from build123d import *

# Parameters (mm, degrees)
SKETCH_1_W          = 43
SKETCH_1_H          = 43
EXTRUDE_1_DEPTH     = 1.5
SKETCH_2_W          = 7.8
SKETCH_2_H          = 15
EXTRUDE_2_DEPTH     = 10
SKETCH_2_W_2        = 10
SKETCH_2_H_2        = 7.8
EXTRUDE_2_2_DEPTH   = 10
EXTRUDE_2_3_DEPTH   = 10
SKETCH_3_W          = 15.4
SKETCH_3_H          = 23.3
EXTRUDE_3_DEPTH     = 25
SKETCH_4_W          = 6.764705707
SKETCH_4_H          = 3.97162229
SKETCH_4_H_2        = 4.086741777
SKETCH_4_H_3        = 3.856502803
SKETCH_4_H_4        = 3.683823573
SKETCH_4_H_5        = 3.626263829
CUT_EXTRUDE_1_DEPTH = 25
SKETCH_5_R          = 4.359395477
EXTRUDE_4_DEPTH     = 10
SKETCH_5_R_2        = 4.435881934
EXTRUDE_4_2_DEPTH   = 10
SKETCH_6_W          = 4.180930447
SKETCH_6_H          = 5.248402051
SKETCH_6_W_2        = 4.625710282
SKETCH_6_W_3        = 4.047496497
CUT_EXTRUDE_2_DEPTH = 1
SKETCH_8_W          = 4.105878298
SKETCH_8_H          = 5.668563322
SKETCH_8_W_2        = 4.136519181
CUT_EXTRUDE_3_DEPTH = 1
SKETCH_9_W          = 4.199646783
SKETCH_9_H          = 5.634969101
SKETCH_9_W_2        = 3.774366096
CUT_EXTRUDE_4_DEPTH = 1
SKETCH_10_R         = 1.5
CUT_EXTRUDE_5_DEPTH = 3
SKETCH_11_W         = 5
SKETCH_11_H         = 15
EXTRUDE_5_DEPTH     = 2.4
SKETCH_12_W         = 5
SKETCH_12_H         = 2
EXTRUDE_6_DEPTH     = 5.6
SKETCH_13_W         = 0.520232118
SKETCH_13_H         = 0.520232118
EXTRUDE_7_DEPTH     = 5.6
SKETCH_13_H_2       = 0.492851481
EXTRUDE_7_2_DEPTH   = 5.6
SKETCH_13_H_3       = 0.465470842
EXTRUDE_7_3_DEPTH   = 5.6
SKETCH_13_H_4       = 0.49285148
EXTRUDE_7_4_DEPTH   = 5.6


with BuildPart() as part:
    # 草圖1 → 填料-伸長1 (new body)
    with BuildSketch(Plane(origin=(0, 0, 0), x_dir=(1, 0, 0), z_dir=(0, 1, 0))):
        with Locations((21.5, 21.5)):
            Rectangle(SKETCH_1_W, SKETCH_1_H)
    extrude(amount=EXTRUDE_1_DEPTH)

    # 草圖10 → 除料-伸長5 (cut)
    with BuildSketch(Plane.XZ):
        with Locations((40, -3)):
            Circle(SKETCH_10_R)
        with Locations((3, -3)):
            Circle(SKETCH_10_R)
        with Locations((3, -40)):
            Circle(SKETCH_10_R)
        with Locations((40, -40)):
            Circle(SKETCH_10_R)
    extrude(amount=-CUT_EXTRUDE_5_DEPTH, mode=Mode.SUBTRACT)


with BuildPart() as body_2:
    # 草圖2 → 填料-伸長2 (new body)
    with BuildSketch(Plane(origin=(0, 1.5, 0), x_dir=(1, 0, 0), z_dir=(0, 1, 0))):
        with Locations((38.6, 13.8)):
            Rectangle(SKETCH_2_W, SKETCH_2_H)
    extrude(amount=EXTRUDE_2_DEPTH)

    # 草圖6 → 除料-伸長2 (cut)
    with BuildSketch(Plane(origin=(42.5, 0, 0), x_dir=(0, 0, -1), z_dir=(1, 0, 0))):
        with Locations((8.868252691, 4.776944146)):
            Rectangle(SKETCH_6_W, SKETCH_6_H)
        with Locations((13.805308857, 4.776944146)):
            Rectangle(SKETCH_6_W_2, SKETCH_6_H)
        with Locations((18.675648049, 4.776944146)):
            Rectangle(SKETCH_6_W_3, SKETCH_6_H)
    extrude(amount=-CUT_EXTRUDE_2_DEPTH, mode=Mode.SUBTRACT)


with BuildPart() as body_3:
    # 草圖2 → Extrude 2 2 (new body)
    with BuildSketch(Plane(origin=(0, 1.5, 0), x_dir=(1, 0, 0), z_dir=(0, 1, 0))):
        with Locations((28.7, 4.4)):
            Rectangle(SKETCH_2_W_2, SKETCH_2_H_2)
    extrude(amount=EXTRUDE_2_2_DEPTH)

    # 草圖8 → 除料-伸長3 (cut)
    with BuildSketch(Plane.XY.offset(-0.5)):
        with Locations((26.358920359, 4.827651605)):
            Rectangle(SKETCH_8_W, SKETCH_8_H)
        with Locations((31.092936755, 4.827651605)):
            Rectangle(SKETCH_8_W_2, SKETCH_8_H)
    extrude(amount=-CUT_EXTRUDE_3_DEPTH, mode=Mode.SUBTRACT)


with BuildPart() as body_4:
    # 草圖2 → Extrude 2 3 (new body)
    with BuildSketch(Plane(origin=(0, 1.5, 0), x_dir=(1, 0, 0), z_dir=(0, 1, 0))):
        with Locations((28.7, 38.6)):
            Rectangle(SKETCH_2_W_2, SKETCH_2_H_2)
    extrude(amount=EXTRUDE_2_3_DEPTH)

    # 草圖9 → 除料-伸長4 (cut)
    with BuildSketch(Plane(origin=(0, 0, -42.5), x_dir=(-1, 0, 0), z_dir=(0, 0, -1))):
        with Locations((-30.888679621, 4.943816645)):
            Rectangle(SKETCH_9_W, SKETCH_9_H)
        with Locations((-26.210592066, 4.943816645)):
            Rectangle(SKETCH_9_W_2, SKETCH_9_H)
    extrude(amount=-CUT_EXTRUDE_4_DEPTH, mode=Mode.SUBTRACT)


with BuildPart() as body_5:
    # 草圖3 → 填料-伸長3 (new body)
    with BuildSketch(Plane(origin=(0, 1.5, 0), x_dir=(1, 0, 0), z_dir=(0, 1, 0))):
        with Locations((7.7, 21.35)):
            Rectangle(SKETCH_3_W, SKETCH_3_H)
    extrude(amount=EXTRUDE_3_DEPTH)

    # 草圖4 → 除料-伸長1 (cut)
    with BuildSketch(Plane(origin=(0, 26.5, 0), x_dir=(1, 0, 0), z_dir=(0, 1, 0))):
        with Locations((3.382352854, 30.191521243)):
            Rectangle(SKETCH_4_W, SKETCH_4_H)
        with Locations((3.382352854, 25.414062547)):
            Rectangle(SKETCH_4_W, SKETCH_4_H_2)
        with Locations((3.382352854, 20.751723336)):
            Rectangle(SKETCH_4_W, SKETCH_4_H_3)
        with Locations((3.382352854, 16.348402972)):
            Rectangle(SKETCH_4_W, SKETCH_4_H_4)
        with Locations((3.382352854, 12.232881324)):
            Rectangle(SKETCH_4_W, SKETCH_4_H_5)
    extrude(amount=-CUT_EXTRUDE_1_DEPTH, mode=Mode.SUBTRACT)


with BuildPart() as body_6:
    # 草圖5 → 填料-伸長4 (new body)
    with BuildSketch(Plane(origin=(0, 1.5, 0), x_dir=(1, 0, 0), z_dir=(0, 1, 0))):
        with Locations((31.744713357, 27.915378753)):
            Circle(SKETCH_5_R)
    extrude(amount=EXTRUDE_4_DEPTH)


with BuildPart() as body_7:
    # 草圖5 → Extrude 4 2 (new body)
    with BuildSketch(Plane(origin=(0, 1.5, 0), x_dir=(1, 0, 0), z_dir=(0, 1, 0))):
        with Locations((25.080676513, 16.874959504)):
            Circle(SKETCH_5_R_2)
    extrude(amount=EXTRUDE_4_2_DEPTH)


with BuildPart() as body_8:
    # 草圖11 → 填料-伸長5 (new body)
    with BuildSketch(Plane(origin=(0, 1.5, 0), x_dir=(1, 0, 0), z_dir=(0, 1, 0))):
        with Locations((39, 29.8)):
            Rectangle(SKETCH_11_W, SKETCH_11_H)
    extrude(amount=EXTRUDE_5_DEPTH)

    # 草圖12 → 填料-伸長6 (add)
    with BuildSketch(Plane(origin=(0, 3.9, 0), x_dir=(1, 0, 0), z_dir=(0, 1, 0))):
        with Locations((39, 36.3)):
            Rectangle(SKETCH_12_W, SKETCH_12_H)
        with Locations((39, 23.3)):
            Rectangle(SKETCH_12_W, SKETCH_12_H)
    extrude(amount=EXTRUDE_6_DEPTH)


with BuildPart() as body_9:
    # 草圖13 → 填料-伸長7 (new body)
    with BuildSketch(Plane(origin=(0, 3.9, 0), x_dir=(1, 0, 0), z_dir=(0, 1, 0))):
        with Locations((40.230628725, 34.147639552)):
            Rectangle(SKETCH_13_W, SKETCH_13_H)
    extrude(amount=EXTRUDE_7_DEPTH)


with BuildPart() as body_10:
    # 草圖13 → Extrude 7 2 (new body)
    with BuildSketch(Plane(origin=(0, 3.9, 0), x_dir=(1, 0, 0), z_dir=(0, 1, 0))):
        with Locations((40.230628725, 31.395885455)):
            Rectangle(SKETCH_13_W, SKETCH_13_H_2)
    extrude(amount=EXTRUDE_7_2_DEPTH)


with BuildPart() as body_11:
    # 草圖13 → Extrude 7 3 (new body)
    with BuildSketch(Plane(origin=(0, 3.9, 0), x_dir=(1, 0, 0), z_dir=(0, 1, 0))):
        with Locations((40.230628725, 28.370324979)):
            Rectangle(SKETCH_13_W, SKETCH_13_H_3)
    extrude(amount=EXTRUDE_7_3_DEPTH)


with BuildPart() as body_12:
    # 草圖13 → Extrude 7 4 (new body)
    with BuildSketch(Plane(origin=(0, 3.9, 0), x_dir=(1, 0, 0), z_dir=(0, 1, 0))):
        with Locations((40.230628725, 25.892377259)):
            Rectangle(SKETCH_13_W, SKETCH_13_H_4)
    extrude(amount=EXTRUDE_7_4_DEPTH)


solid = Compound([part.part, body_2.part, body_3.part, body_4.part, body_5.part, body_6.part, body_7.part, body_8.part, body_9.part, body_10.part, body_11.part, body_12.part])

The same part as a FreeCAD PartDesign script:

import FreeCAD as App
import Part
import Sketcher
from FreeCAD import Vector
Q = App.Units.Quantity


def add_polygon(sketch, points):
    """Adds a closed chain of lines whose ends are joined by coincident constraints."""
    first, n = sketch.GeometryCount, len(points)
    for a, b in zip(points, points[1:] + points[:1]):
        sketch.addGeometry(Part.LineSegment(App.Vector(*a, 0), App.Vector(*b, 0)), False)
    for i in range(n):
        sketch.addConstraint(Sketcher.Constraint("Coincident", first + i, 2, first + (i + 1) % n, 1))

doc = App.newDocument("Part")
params = doc.addObject("Spreadsheet::Sheet", "Params")
for row, (alias, value) in enumerate([
    ("sketch1_width", "43 mm"),
    ("pad1_length", "1.5 mm"),
    ("sketch2_diameter", "3 mm"),
    ("pocket1_length", "3 mm"),
    ("sketch3_height", "15 mm"),
    ("sketch3_width", "7.8 mm"),
    ("pad2_length", "10 mm"),
    ("pocket2_length", "1 mm"),
    ("sketch5_width", "10 mm"),
    ("sketch5_height", "7.8 mm"),
    ("pad3_length", "10 mm"),
    ("pocket3_length", "1 mm"),
    ("sketch7_width", "10 mm"),
    ("sketch7_height", "7.8 mm"),
    ("pad4_length", "10 mm"),
    ("pocket4_length", "1 mm"),
    ("sketch9_width", "15.4 mm"),
    ("sketch9_height", "23.3 mm"),
    ("pad5_length", "25 mm"),
    ("pocket5_length", "25 mm"),
    ("pad6_length", "10 mm"),
    ("pad7_length", "10 mm"),
    ("sketch13_width", "5 mm"),
    ("sketch13_height", "15 mm"),
    ("pad8_length", "2.4 mm"),
    ("sketch14_width", "5 mm"),
    ("sketch14_height", "2 mm"),
    ("pad9_length", "5.6 mm"),
    ("pad10_length", "5.6 mm"),
    ("pad11_length", "5.6 mm"),
    ("pad12_length", "5.6 mm"),
    ("pad13_length", "5.6 mm"),
], start=1):
    params.set(f"A{row}", alias)
    params.set(f"B{row}", "=" + value)
    params.setAlias(f"B{row}", alias)

body = doc.addObject("PartDesign::Body", "Body")

# Sketch on XZ plane
sketch1 = doc.addObject("Sketcher::SketchObject", "Sketch")
body.addObject(sketch1)
sketch1.AttachmentSupport = (doc.XZ_Plane, [""])
sketch1.MapMode = "FlatFace"
add_polygon(sketch1, [(0, -43), (0, 0), (43, 0), (43, -43)])  # lines 0-3
sketch1.addConstraint(Sketcher.Constraint("Vertical", 0))
sketch1.addConstraint(Sketcher.Constraint("Horizontal", 1))
sketch1.addConstraint(Sketcher.Constraint("Vertical", 2))
sketch1.addConstraint(Sketcher.Constraint("Horizontal", 3))
sketch1.addConstraint(Sketcher.Constraint("Coincident", 0, 2, -1, 1))
sketch1.addConstraint(Sketcher.Constraint("Equal", 3, 0))
sketch1.addConstraint(Sketcher.Constraint("DistanceX", 1, 1, 1, 2, Q("43 mm")))
sketch1.setExpression("Constraints[10]", "Params.sketch1_width")
pad1 = doc.addObject("PartDesign::Pad", "Pad")
body.addObject(pad1)
pad1.Profile = sketch1
pad1.setExpression("Length", "Params.pad1_length")
pad1.Reversed = True

# Sketch on XZ plane
sketch2 = doc.addObject("Sketcher::SketchObject", "Sketch001")
body.addObject(sketch2)
sketch2.AttachmentSupport = (doc.XZ_Plane, [""])
sketch2.MapMode = "FlatFace"
sketch2.addGeometry(Part.Circle(Vector(40, -3, 0), Vector(0, 0, 1), 1.5), False)
sketch2.addGeometry(Part.Circle(Vector(3, -3, 0), Vector(0, 0, 1), 1.5), False)
sketch2.addGeometry(Part.Circle(Vector(3, -40, 0), Vector(0, 0, 1), 1.5), False)
sketch2.addGeometry(Part.Circle(Vector(40, -40, 0), Vector(0, 0, 1), 1.5), False)
sketch2.addConstraint(Sketcher.Constraint("Equal", 0, 1))
sketch2.addConstraint(Sketcher.Constraint("Equal", 1, 2))
sketch2.addConstraint(Sketcher.Constraint("Equal", 2, 3))
sketch2.addConstraint(Sketcher.Constraint("Horizontal", 0, 3, 1, 3))
sketch2.addConstraint(Sketcher.Constraint("Horizontal", 2, 3, 3, 3))
sketch2.addConstraint(Sketcher.Constraint("Vertical", 1, 3, 2, 3))
sketch2.addConstraint(Sketcher.Constraint("Vertical", 0, 3, 3, 3))
sketch2.addConstraint(Sketcher.Constraint("Diameter", 0, Q("3 mm")))
sketch2.addConstraint(Sketcher.Constraint("DistanceX", -1, 1, 0, 3, Q("40 mm")))
sketch2.addConstraint(Sketcher.Constraint("DistanceY", 0, 3, -1, 1, Q("3 mm")))
sketch2.addConstraint(Sketcher.Constraint("DistanceX", -1, 1, 1, 3, Q("3 mm")))
sketch2.addConstraint(Sketcher.Constraint("DistanceY", 2, 3, -1, 1, Q("40 mm")))
sketch2.setExpression("Constraints[7]", "Params.sketch2_diameter")
pocket1 = doc.addObject("PartDesign::Pocket", "Pocket")
body.addObject(pocket1)
pocket1.Profile = sketch2
pocket1.setExpression("Length", "Params.pocket1_length")
body2 = doc.addObject("PartDesign::Body", "Body001")

# Sketch on XZ plane
sketch3 = doc.addObject("Sketcher::SketchObject", "Sketch002")
body2.addObject(sketch3)
sketch3.AttachmentSupport = (doc.getObject("XZ_Plane001"), [""])
sketch3.MapMode = "FlatFace"
sketch3.AttachmentOffset = App.Placement(Vector(0, 0, -1.5), App.Rotation())
add_polygon(sketch3, [(34.7, -21.3), (34.7, -6.3), (42.5, -6.3), (42.5, -21.3)])  # lines 0-3
sketch3.addConstraint(Sketcher.Constraint("Vertical", 0))
sketch3.addConstraint(Sketcher.Constraint("Horizontal", 1))
sketch3.addConstraint(Sketcher.Constraint("Vertical", 2))
sketch3.addConstraint(Sketcher.Constraint("Horizontal", 3))
sketch3.addConstraint(Sketcher.Constraint("DistanceY", 0, 1, 0, 2, Q("15 mm")))
sketch3.addConstraint(Sketcher.Constraint("DistanceX", 1, 1, 1, 2, Q("7.8 mm")))
sketch3.addConstraint(Sketcher.Constraint("DistanceX", -1, 1, 0, 2, Q("34.7 mm")))
sketch3.addConstraint(Sketcher.Constraint("DistanceY", 0, 2, -1, 1, Q("6.3 mm")))
sketch3.setExpression("Constraints[8]", "Params.sketch3_height")
sketch3.setExpression("Constraints[9]", "Params.sketch3_width")
pad2 = doc.addObject("PartDesign::Pad", "Pad001")
body2.addObject(pad2)
pad2.Profile = sketch3
pad2.setExpression("Length", "Params.pad2_length")
pad2.Reversed = True

# Sketch on YZ plane
sketch4 = doc.addObject("Sketcher::SketchObject", "Sketch003")
body2.addObject(sketch4)
sketch4.AttachmentSupport = (doc.getObject("YZ_Plane001"), [""])
sketch4.MapMode = "FlatFace"
sketch4.AttachmentOffset = App.Placement(Vector(0, 0, 42.5), App.Rotation())
add_polygon(sketch4, [(7.401145, -6.777787), (2.152743, -6.777787), (2.152743, -10.958718), (7.401145, -10.958718)])  # lines 0-3
add_polygon(sketch4, [(7.401145, -11.492454), (2.152743, -11.492454), (2.152743, -16.118164), (7.401145, -16.118164)])  # lines 4-7
add_polygon(sketch4, [(7.401145, -16.6519), (2.152743, -16.6519), (2.152743, -20.699396), (7.401145, -20.699396)])  # lines 8-11
sketch4.addConstraint(Sketcher.Constraint("Horizontal", 0))
sketch4.addConstraint(Sketcher.Constraint("Vertical", 1))
sketch4.addConstraint(Sketcher.Constraint("Horizontal", 2))
sketch4.addConstraint(Sketcher.Constraint("Vertical", 3))
sketch4.addConstraint(Sketcher.Constraint("Horizontal", 4))
sketch4.addConstraint(Sketcher.Constraint("Vertical", 5))
sketch4.addConstraint(Sketcher.Constraint("Horizontal", 6))
sketch4.addConstraint(Sketcher.Constraint("Vertical", 7))
sketch4.addConstraint(Sketcher.Constraint("Horizontal", 8))
sketch4.addConstraint(Sketcher.Constraint("Vertical", 9))
sketch4.addConstraint(Sketcher.Constraint("Horizontal", 10))
sketch4.addConstraint(Sketcher.Constraint("Vertical", 11))
sketch4.addConstraint(Sketcher.Constraint("Vertical", 1, 2, 4, 2))
sketch4.addConstraint(Sketcher.Constraint("Vertical", 3, 2, 6, 2))
sketch4.addConstraint(Sketcher.Constraint("Vertical", 5, 2, 8, 2))
sketch4.addConstraint(Sketcher.Constraint("Vertical", 7, 2, 10, 2))
sketch4.addConstraint(Sketcher.Constraint("DistanceY", 1, 2, 1, 1, Q("4.18093 mm")))
sketch4.addConstraint(Sketcher.Constraint("DistanceY", 5, 2, 5, 1, Q("4.62571 mm")))
sketch4.addConstraint(Sketcher.Constraint("DistanceY", 8, 2, -1, 1, Q("16.6519 mm")))
sketch4.addConstraint(Sketcher.Constraint("DistanceX", 0, 2, 0, 1, Q("5.248402 mm")))
sketch4.addConstraint(Sketcher.Constraint("DistanceY", 9, 2, 9, 1, Q("4.047496 mm")))
sketch4.addConstraint(Sketcher.Constraint("DistanceY", 8, 2, 1, 2, Q("5.693182 mm")))
sketch4.addConstraint(Sketcher.Constraint("DistanceX", -1, 1, 0, 2, Q("2.152743 mm")))
sketch4.addConstraint(Sketcher.Constraint("DistanceY", 4, 2, -1, 1, Q("11.492454 mm")))
pocket2 = doc.addObject("PartDesign::Pocket", "Pocket001")
body2.addObject(pocket2)
pocket2.Profile = sketch4
pocket2.setExpression("Length", "Params.pocket2_length")
body3 = doc.addObject("PartDesign::Body", "Body002")

# Sketch on XZ plane
sketch5 = doc.addObject("Sketcher::SketchObject", "Sketch004")
body3.addObject(sketch5)
sketch5.AttachmentSupport = (doc.getObject("XZ_Plane002"), [""])
sketch5.MapMode = "FlatFace"
sketch5.AttachmentOffset = App.Placement(Vector(0, 0, -1.5), App.Rotation())
add_polygon(sketch5, [(23.7, -8.3), (23.7, -0.5), (33.7, -0.5), (33.7, -8.3)])  # lines 0-3
sketch5.addConstraint(Sketcher.Constraint("Vertical", 0))
sketch5.addConstraint(Sketcher.Constraint("Horizontal", 1))
sketch5.addConstraint(Sketcher.Constraint("Vertical", 2))
sketch5.addConstraint(Sketcher.Constraint("Horizontal", 3))
sketch5.addConstraint(Sketcher.Constraint("DistanceX", 1, 1, 1, 2, Q("10 mm")))
sketch5.addConstraint(Sketcher.Constraint("DistanceY", 0, 1, 0, 2, Q("7.8 mm")))
sketch5.addConstraint(Sketcher.Constraint("DistanceX", -1, 1, 0, 2, Q("23.7 mm")))
sketch5.addConstraint(Sketcher.Constraint("DistanceY", 0, 2, -1, 1, Q("0.5 mm")))
sketch5.setExpression("Constraints[8]", "Params.sketch5_width")
sketch5.setExpression("Constraints[9]", "Params.sketch5_height")
pad3 = doc.addObject("PartDesign::Pad", "Pad002")
body3.addObject(pad3)
pad3.Profile = sketch5
pad3.setExpression("Length", "Params.pad3_length")
pad3.Reversed = True

# Sketch on XY plane
sketch6 = doc.addObject("Sketcher::SketchObject", "Sketch005")
body3.addObject(sketch6)
sketch6.AttachmentSupport = (doc.getObject("XY_Plane002"), [""])
sketch6.MapMode = "FlatFace"
sketch6.AttachmentOffset = App.Placement(Vector(0, 0, -0.5), App.Rotation())
add_polygon(sketch6, [(24.305981, 7.661933), (24.305981, 1.99337), (28.41186, 1.99337), (28.41186, 7.661933)])  # lines 0-3
add_polygon(sketch6, [(29.024677, 7.661933), (29.024677, 1.99337), (33.161196, 1.99337), (33.161196, 7.661933)])  # lines 4-7
sketch6.addConstraint(Sketcher.Constraint("Vertical", 0))
sketch6.addConstraint(Sketcher.Constraint("Horizontal", 1))
sketch6.addConstraint(Sketcher.Constraint("Vertical", 2))
sketch6.addConstraint(Sketcher.Constraint("Horizontal", 3))
sketch6.addConstraint(Sketcher.Constraint("Vertical", 4))
sketch6.addConstraint(Sketcher.Constraint("Horizontal", 5))
sketch6.addConstraint(Sketcher.Constraint("Vertical", 6))
sketch6.addConstraint(Sketcher.Constraint("Horizontal", 7))
sketch6.addConstraint(Sketcher.Constraint("Horizontal", 1, 2, 4, 2))
sketch6.addConstraint(Sketcher.Constraint("Horizontal", 3, 2, 6, 2))
sketch6.addConstraint(Sketcher.Constraint("DistanceX", 1, 1, 1, 2, Q("4.105878 mm")))
sketch6.addConstraint(Sketcher.Constraint("DistanceX", 5, 1, 5, 2, Q("4.136519 mm")))
sketch6.addConstraint(Sketcher.Constraint("DistanceY", 0, 2, 0, 1, Q("5.668563 mm")))
sketch6.addConstraint(Sketcher.Constraint("DistanceX", -1, 1, 0, 2, Q("24.305981 mm")))
sketch6.addConstraint(Sketcher.Constraint("DistanceY", -1, 1, 0, 2, Q("1.99337 mm")))
sketch6.addConstraint(Sketcher.Constraint("DistanceX", -1, 1, 4, 2, Q("29.024677 mm")))
pocket3 = doc.addObject("PartDesign::Pocket", "Pocket002")
body3.addObject(pocket3)
pocket3.Profile = sketch6
pocket3.setExpression("Length", "Params.pocket3_length")
body4 = doc.addObject("PartDesign::Body", "Body003")

# Sketch on XZ plane
sketch7 = doc.addObject("Sketcher::SketchObject", "Sketch006")
body4.addObject(sketch7)
sketch7.AttachmentSupport = (doc.getObject("XZ_Plane003"), [""])
sketch7.MapMode = "FlatFace"
sketch7.AttachmentOffset = App.Placement(Vector(0, 0, -1.5), App.Rotation())
add_polygon(sketch7, [(23.7, -42.5), (23.7, -34.7), (33.7, -34.7), (33.7, -42.5)])  # lines 0-3
sketch7.addConstraint(Sketcher.Constraint("Vertical", 0))
sketch7.addConstraint(Sketcher.Constraint("Horizontal", 1))
sketch7.addConstraint(Sketcher.Constraint("Vertical", 2))
sketch7.addConstraint(Sketcher.Constraint("Horizontal", 3))
sketch7.addConstraint(Sketcher.Constraint("DistanceX", 1, 1, 1, 2, Q("10 mm")))
sketch7.addConstraint(Sketcher.Constraint("DistanceY", 0, 1, 0, 2, Q("7.8 mm")))
sketch7.addConstraint(Sketcher.Constraint("DistanceX", -1, 1, 0, 2, Q("23.7 mm")))
sketch7.addConstraint(Sketcher.Constraint("DistanceY", 0, 2, -1, 1, Q("34.7 mm")))
sketch7.setExpression("Constraints[8]", "Params.sketch7_width")
sketch7.setExpression("Constraints[9]", "Params.sketch7_height")
pad4 = doc.addObject("PartDesign::Pad", "Pad003")
body4.addObject(pad4)
pad4.Profile = sketch7
pad4.setExpression("Length", "Params.pad4_length")
pad4.Reversed = True

# Sketch on XY plane
sketch8 = doc.addObject("Sketcher::SketchObject", "Sketch007")
body4.addObject(sketch8)
sketch8.AttachmentSupport = (doc.getObject("XY_Plane003"), [""])
sketch8.MapMode = "FlatFace"
sketch8.AttachmentOffset = App.Placement(Vector(0, 0, -42.5), App.Rotation())
add_polygon(sketch8, [(32.988503, 7.761301), (32.988503, 2.126332), (28.788856, 2.126332), (28.788856, 7.761301)])  # lines 0-3
add_polygon(sketch8, [(28.097775, 7.761301), (28.097775, 2.126332), (24.323409, 2.126332), (24.323409, 7.761301)])  # lines 4-7
sketch8.addConstraint(Sketcher.Constraint("Vertical", 0))
sketch8.addConstraint(Sketcher.Constraint("Horizontal", 1))
sketch8.addConstraint(Sketcher.Constraint("Vertical", 2))
sketch8.addConstraint(Sketcher.Constraint("Horizontal", 3))
sketch8.addConstraint(Sketcher.Constraint("Vertical", 4))
sketch8.addConstraint(Sketcher.Constraint("Horizontal", 5))
sketch8.addConstraint(Sketcher.Constraint("Vertical", 6))
sketch8.addConstraint(Sketcher.Constraint("Horizontal", 7))
sketch8.addConstraint(Sketcher.Constraint("Horizontal", 1, 2, 4, 2))
sketch8.addConstraint(Sketcher.Constraint("Horizontal", 3, 2, 6, 2))
sketch8.addConstraint(Sketcher.Constraint("DistanceY", 0, 2, 0, 1, Q("5.634969 mm")))
sketch8.addConstraint(Sketcher.Constraint("DistanceY", -1, 1, 2, 2, Q("7.761301 mm")))
sketch8.addConstraint(Sketcher.Constraint("DistanceX", 1, 2, 1, 1, Q("4.199647 mm")))
sketch8.addConstraint(Sketcher.Constraint("DistanceX", 5, 2, 5, 1, Q("3.774366 mm")))
sketch8.addConstraint(Sketcher.Constraint("DistanceX", -1, 1, 5, 2, Q("24.323409 mm")))
sketch8.addConstraint(Sketcher.Constraint("DistanceX", 4, 2, 1, 2, Q("0.691081 mm")))
pocket4 = doc.addObject("PartDesign::Pocket", "Pocket003")
body4.addObject(pocket4)
pocket4.Profile = sketch8
pocket4.setExpression("Length", "Params.pocket4_length")
pocket4.Reversed = True
body5 = doc.addObject("PartDesign::Body", "Body004")

# Sketch on XZ plane
sketch9 = doc.addObject("Sketcher::SketchObject", "Sketch008")
body5.addObject(sketch9)
sketch9.AttachmentSupport = (doc.getObject("XZ_Plane004"), [""])
sketch9.MapMode = "FlatFace"
sketch9.AttachmentOffset = App.Placement(Vector(0, 0, -1.5), App.Rotation())
add_polygon(sketch9, [(0, -33), (0, -9.7), (15.4, -9.7), (15.4, -33)])  # lines 0-3
sketch9.addConstraint(Sketcher.Constraint("Vertical", 0))
sketch9.addConstraint(Sketcher.Constraint("Horizontal", 1))
sketch9.addConstraint(Sketcher.Constraint("Vertical", 2))
sketch9.addConstraint(Sketcher.Constraint("Horizontal", 3))
sketch9.addConstraint(Sketcher.Constraint("PointOnObject", 0, 2, -2))
sketch9.addConstraint(Sketcher.Constraint("DistanceX", 1, 1, 1, 2, Q("15.4 mm")))
sketch9.addConstraint(Sketcher.Constraint("DistanceY", 0, 1, 0, 2, Q("23.3 mm")))
sketch9.addConstraint(Sketcher.Constraint("DistanceY", 2, 2, -1, 1, Q("33 mm")))
sketch9.setExpression("Constraints[9]", "Params.sketch9_width")
sketch9.setExpression("Constraints[10]", "Params.sketch9_height")
pad5 = doc.addObject("PartDesign::Pad", "Pad004")
body5.addObject(pad5)
pad5.Profile = sketch9
pad5.setExpression("Length", "Params.pad5_length")
pad5.Reversed = True

# Sketch on XZ plane
sketch10 = doc.addObject("Sketcher::SketchObject", "Sketch009")
body5.addObject(sketch10)
sketch10.AttachmentSupport = (doc.getObject("XZ_Plane004"), [""])
sketch10.MapMode = "FlatFace"
sketch10.AttachmentOffset = App.Placement(Vector(0, 0, -26.5), App.Rotation())
add_polygon(sketch10, [(0, -32.177332), (0, -28.20571), (6.764706, -28.20571), (6.764706, -32.177332)])  # lines 0-3
add_polygon(sketch10, [(0, -27.457433), (0, -23.370692), (6.764706, -23.370692), (6.764706, -27.457433)])  # lines 4-7
add_polygon(sketch10, [(0, -22.679975), (0, -18.823472), (6.764706, -18.823472), (6.764706, -22.679975)])  # lines 8-11
add_polygon(sketch10, [(0, -18.190315), (0, -14.506491), (6.764706, -14.506491), (6.764706, -18.190315)])  # lines 12-15
add_polygon(sketch10, [(0, -14.046013), (0, -10.419749), (6.764706, -10.419749), (6.764706, -14.046013)])  # lines 16-19
sketch10.addConstraint(Sketcher.Constraint("Vertical", 0))
sketch10.addConstraint(Sketcher.Constraint("Horizontal", 1))
sketch10.addConstraint(Sketcher.Constraint("Vertical", 2))
sketch10.addConstraint(Sketcher.Constraint("Horizontal", 3))
sketch10.addConstraint(Sketcher.Constraint("Vertical", 4))
sketch10.addConstraint(Sketcher.Constraint("Horizontal", 5))
sketch10.addConstraint(Sketcher.Constraint("Vertical", 6))
sketch10.addConstraint(Sketcher.Constraint("Horizontal", 7))
sketch10.addConstraint(Sketcher.Constraint("Vertical", 8))
sketch10.addConstraint(Sketcher.Constraint("Horizontal", 9))
sketch10.addConstraint(Sketcher.Constraint("Vertical", 10))
sketch10.addConstraint(Sketcher.Constraint("Horizontal", 11))
sketch10.addConstraint(Sketcher.Constraint("Vertical", 12))
sketch10.addConstraint(Sketcher.Constraint("Horizontal", 13))
sketch10.addConstraint(Sketcher.Constraint("Vertical", 14))
sketch10.addConstraint(Sketcher.Constraint("Horizontal", 15))
sketch10.addConstraint(Sketcher.Constraint("Vertical", 16))
sketch10.addConstraint(Sketcher.Constraint("Horizontal", 17))
sketch10.addConstraint(Sketcher.Constraint("Vertical", 18))
sketch10.addConstraint(Sketcher.Constraint("Horizontal", 19))
sketch10.addConstraint(Sketcher.Constraint("PointOnObject", 0, 2, -2))
sketch10.addConstraint(Sketcher.Constraint("PointOnObject", 4, 2, -2))
sketch10.addConstraint(Sketcher.Constraint("PointOnObject", 8, 2, -2))
sketch10.addConstraint(Sketcher.Constraint("PointOnObject", 12, 2, -2))
sketch10.addConstraint(Sketcher.Constraint("PointOnObject", 16, 2, -2))
sketch10.addConstraint(Sketcher.Constraint("Vertical", 2, 2, 5, 2))
sketch10.addConstraint(Sketcher.Constraint("Vertical", 6, 2, 9, 2))
sketch10.addConstraint(Sketcher.Constraint("Vertical", 10, 2, 13, 2))
sketch10.addConstraint(Sketcher.Constraint("Vertical", 14, 2, 17, 2))
sketch10.addConstraint(Sketcher.Constraint("DistanceY", 4, 1, 4, 2, Q("4.086742 mm")))
sketch10.addConstraint(Sketcher.Constraint("DistanceY", 2, 2, 6, 2, Q("4.719899 mm")))
sketch10.addConstraint(Sketcher.Constraint("DistanceY", 4, 2, 12, 2, Q("8.8642 mm")))
sketch10.addConstraint(Sketcher.Constraint("DistanceY", 14, 2, 18, 2, Q("4.144302 mm")))
sketch10.addConstraint(Sketcher.Constraint("DistanceX", 1, 1, 1, 2, Q("6.764706 mm")))
sketch10.addConstraint(Sketcher.Constraint("DistanceY", 0, 1, 0, 2, Q("3.971622 mm")))
sketch10.addConstraint(Sketcher.Constraint("DistanceY", 8, 1, 8, 2, Q("3.856503 mm")))
sketch10.addConstraint(Sketcher.Constraint("DistanceY", 12, 1, 12, 2, Q("3.683824 mm")))
sketch10.addConstraint(Sketcher.Constraint("DistanceY", 16, 1, 16, 2, Q("3.626264 mm")))
sketch10.addConstraint(Sketcher.Constraint("DistanceY", 0, 2, -1, 1, Q("28.20571 mm")))
sketch10.addConstraint(Sketcher.Constraint("DistanceY", 8, 2, -1, 1, Q("18.823472 mm")))
pocket5 = doc.addObject("PartDesign::Pocket", "Pocket004")
body5.addObject(pocket5)
pocket5.Profile = sketch10
pocket5.setExpression("Length", "Params.pocket5_length")
pocket5.Reversed = True
body6 = doc.addObject("PartDesign::Body", "Body005")

# Sketch on XZ plane
sketch11 = doc.addObject("Sketcher::SketchObject", "Sketch010")
body6.addObject(sketch11)
sketch11.AttachmentSupport = (doc.getObject("XZ_Plane005"), [""])
sketch11.MapMode = "FlatFace"
sketch11.AttachmentOffset = App.Placement(Vector(0, 0, -1.5), App.Rotation())
sketch11.addGeometry(Part.Circle(Vector(31.744713, -27.915379, 0), Vector(0, 0, 1), 4.359395), False)
sketch11.addConstraint(Sketcher.Constraint("Diameter", 0, Q("8.718791 mm")))
sketch11.addConstraint(Sketcher.Constraint("DistanceY", 0, 3, -1, 1, Q("27.915379 mm")))
sketch11.addConstraint(Sketcher.Constraint("DistanceX", -1, 1, 0, 3, Q("31.744713 mm")))
pad6 = doc.addObject("PartDesign::Pad", "Pad005")
body6.addObject(pad6)
pad6.Profile = sketch11
pad6.setExpression("Length", "Params.pad6_length")
pad6.Reversed = True
body7 = doc.addObject("PartDesign::Body", "Body006")

# Sketch on XZ plane
sketch12 = doc.addObject("Sketcher::SketchObject", "Sketch011")
body7.addObject(sketch12)
sketch12.AttachmentSupport = (doc.getObject("XZ_Plane006"), [""])
sketch12.MapMode = "FlatFace"
sketch12.AttachmentOffset = App.Placement(Vector(0, 0, -1.5), App.Rotation())
sketch12.addGeometry(Part.Circle(Vector(25.080677, -16.87496, 0), Vector(0, 0, 1), 4.435882), False)
sketch12.addConstraint(Sketcher.Constraint("Diameter", 0, Q("8.871764 mm")))
sketch12.addConstraint(Sketcher.Constraint("DistanceY", 0, 3, -1, 1, Q("16.87496 mm")))
sketch12.addConstraint(Sketcher.Constraint("DistanceX", -1, 1, 0, 3, Q("25.080677 mm")))
pad7 = doc.addObject("PartDesign::Pad", "Pad006")
body7.addObject(pad7)
pad7.Profile = sketch12
pad7.setExpression("Length", "Params.pad7_length")
pad7.Reversed = True
body8 = doc.addObject("PartDesign::Body", "Body007")

# Sketch on XZ plane
sketch13 = doc.addObject("Sketcher::SketchObject", "Sketch012")
body8.addObject(sketch13)
sketch13.AttachmentSupport = (doc.getObject("XZ_Plane007"), [""])
sketch13.MapMode = "FlatFace"
sketch13.AttachmentOffset = App.Placement(Vector(0, 0, -1.5), App.Rotation())
add_polygon(sketch13, [(36.5, -37.3), (36.5, -22.3), (41.5, -22.3), (41.5, -37.3)])  # lines 0-3
sketch13.addConstraint(Sketcher.Constraint("Vertical", 0))
sketch13.addConstraint(Sketcher.Constraint("Horizontal", 1))
sketch13.addConstraint(Sketcher.Constraint("Vertical", 2))
sketch13.addConstraint(Sketcher.Constraint("Horizontal", 3))
sketch13.addConstraint(Sketcher.Constraint("DistanceX", 1, 1, 1, 2, Q("5 mm")))
sketch13.addConstraint(Sketcher.Constraint("DistanceY", 0, 1, 0, 2, Q("15 mm")))
sketch13.addConstraint(Sketcher.Constraint("DistanceX", -1, 1, 0, 2, Q("36.5 mm")))
sketch13.addConstraint(Sketcher.Constraint("DistanceY", 0, 2, -1, 1, Q("22.3 mm")))
sketch13.setExpression("Constraints[8]", "Params.sketch13_width")
sketch13.setExpression("Constraints[9]", "Params.sketch13_height")
pad8 = doc.addObject("PartDesign::Pad", "Pad007")
body8.addObject(pad8)
pad8.Profile = sketch13
pad8.setExpression("Length", "Params.pad8_length")
pad8.Reversed = True

# Sketch on XZ plane
sketch14 = doc.addObject("Sketcher::SketchObject", "Sketch013")
body8.addObject(sketch14)
sketch14.AttachmentSupport = (doc.getObject("XZ_Plane007"), [""])
sketch14.MapMode = "FlatFace"
sketch14.AttachmentOffset = App.Placement(Vector(0, 0, -3.9), App.Rotation())
add_polygon(sketch14, [(36.5, -37.3), (36.5, -35.3), (41.5, -35.3), (41.5, -37.3)])  # lines 0-3
add_polygon(sketch14, [(36.5, -24.3), (36.5, -22.3), (41.5, -22.3), (41.5, -24.3)])  # lines 4-7
sketch14.addConstraint(Sketcher.Constraint("Vertical", 0))
sketch14.addConstraint(Sketcher.Constraint("Horizontal", 1))
sketch14.addConstraint(Sketcher.Constraint("Vertical", 2))
sketch14.addConstraint(Sketcher.Constraint("Horizontal", 3))
sketch14.addConstraint(Sketcher.Constraint("Vertical", 4))
sketch14.addConstraint(Sketcher.Constraint("Horizontal", 5))
sketch14.addConstraint(Sketcher.Constraint("Vertical", 6))
sketch14.addConstraint(Sketcher.Constraint("Horizontal", 7))
sketch14.addConstraint(Sketcher.Constraint("Vertical", 3, 2, 4, 2))
sketch14.addConstraint(Sketcher.Constraint("Vertical", 2, 2, 5, 2))
sketch14.addConstraint(Sketcher.Constraint("Equal", 2, 4))
sketch14.addConstraint(Sketcher.Constraint("DistanceX", 1, 1, 1, 2, Q("5 mm")))
sketch14.addConstraint(Sketcher.Constraint("DistanceY", 0, 1, 0, 2, Q("2 mm")))
sketch14.addConstraint(Sketcher.Constraint("DistanceY", 0, 2, 4, 2, Q("13 mm")))
sketch14.addConstraint(Sketcher.Constraint("DistanceX", -1, 1, 0, 2, Q("36.5 mm")))
sketch14.addConstraint(Sketcher.Constraint("DistanceY", 0, 2, -1, 1, Q("35.3 mm")))
sketch14.setExpression("Constraints[19]", "Params.sketch14_width")
sketch14.setExpression("Constraints[20]", "Params.sketch14_height")
pad9 = doc.addObject("PartDesign::Pad", "Pad008")
body8.addObject(pad9)
pad9.Profile = sketch14
pad9.setExpression("Length", "Params.pad9_length")
pad9.Reversed = True
body9 = doc.addObject("PartDesign::Body", "Body008")

# Sketch on XZ plane
sketch15 = doc.addObject("Sketcher::SketchObject", "Sketch014")
body9.addObject(sketch15)
sketch15.AttachmentSupport = (doc.getObject("XZ_Plane008"), [""])
sketch15.MapMode = "FlatFace"
sketch15.AttachmentOffset = App.Placement(Vector(0, 0, -3.9), App.Rotation())
add_polygon(sketch15, [(39.970513, -34.407756), (39.970513, -33.887523), (40.490745, -33.887523), (40.490745, -34.407756)])  # lines 0-3
sketch15.addConstraint(Sketcher.Constraint("Vertical", 0))
sketch15.addConstraint(Sketcher.Constraint("Horizontal", 1))
sketch15.addConstraint(Sketcher.Constraint("Vertical", 2))
sketch15.addConstraint(Sketcher.Constraint("Horizontal", 3))
sketch15.addConstraint(Sketcher.Constraint("Equal", 3, 0))
sketch15.addConstraint(Sketcher.Constraint("DistanceX", 1, 1, 1, 2, Q("0.520232 mm")))
sketch15.addConstraint(Sketcher.Constraint("DistanceX", -1, 1, 0, 2, Q("39.970513 mm")))
sketch15.addConstraint(Sketcher.Constraint("DistanceY", 0, 2, -1, 1, Q("33.887523 mm")))
pad10 = doc.addObject("PartDesign::Pad", "Pad009")
body9.addObject(pad10)
pad10.Profile = sketch15
pad10.setExpression("Length", "Params.pad10_length")
pad10.Reversed = True
body10 = doc.addObject("PartDesign::Body", "Body009")

# Sketch on XZ plane
sketch16 = doc.addObject("Sketcher::SketchObject", "Sketch015")
body10.addObject(sketch16)
sketch16.AttachmentSupport = (doc.getObject("XZ_Plane009"), [""])
sketch16.MapMode = "FlatFace"
sketch16.AttachmentOffset = App.Placement(Vector(0, 0, -3.9), App.Rotation())
add_polygon(sketch16, [(39.970513, -31.642311), (39.970513, -31.14946), (40.490745, -31.14946), (40.490745, -31.642311)])  # lines 0-3
sketch16.addConstraint(Sketcher.Constraint("Vertical", 0))
sketch16.addConstraint(Sketcher.Constraint("Horizontal", 1))
sketch16.addConstraint(Sketcher.Constraint("Vertical", 2))
sketch16.addConstraint(Sketcher.Constraint("Horizontal", 3))
sketch16.addConstraint(Sketcher.Constraint("DistanceY", 0, 1, 0, 2, Q("0.492851 mm")))
sketch16.addConstraint(Sketcher.Constraint("DistanceX", 1, 1, 1, 2, Q("0.520232 mm")))
sketch16.addConstraint(Sketcher.Constraint("DistanceY", 0, 2, -1, 1, Q("31.14946 mm")))
sketch16.addConstraint(Sketcher.Constraint("DistanceX", -1, 1, 0, 2, Q("39.970513 mm")))
pad11 = doc.addObject("PartDesign::Pad", "Pad010")
body10.addObject(pad11)
pad11.Profile = sketch16
pad11.setExpression("Length", "Params.pad11_length")
pad11.Reversed = True
body11 = doc.addObject("PartDesign::Body", "Body010")

# Sketch on XZ plane
sketch17 = doc.addObject("Sketcher::SketchObject", "Sketch016")
body11.addObject(sketch17)
sketch17.AttachmentSupport = (doc.getObject("XZ_Plane010"), [""])
sketch17.MapMode = "FlatFace"
sketch17.AttachmentOffset = App.Placement(Vector(0, 0, -3.9), App.Rotation())
add_polygon(sketch17, [(39.970513, -28.60306), (39.970513, -28.13759), (40.490745, -28.13759), (40.490745, -28.60306)])  # lines 0-3
sketch17.addConstraint(Sketcher.Constraint("Vertical", 0))
sketch17.addConstraint(Sketcher.Constraint("Horizontal", 1))
sketch17.addConstraint(Sketcher.Constraint("Vertical", 2))
sketch17.addConstraint(Sketcher.Constraint("Horizontal", 3))
sketch17.addConstraint(Sketcher.Constraint("DistanceY", 0, 1, 0, 2, Q("0.465471 mm")))
sketch17.addConstraint(Sketcher.Constraint("DistanceX", 1, 1, 1, 2, Q("0.520232 mm")))
sketch17.addConstraint(Sketcher.Constraint("DistanceY", 0, 2, -1, 1, Q("28.13759 mm")))
sketch17.addConstraint(Sketcher.Constraint("DistanceX", -1, 1, 0, 2, Q("39.970513 mm")))
pad12 = doc.addObject("PartDesign::Pad", "Pad011")
body11.addObject(pad12)
pad12.Profile = sketch17
pad12.setExpression("Length", "Params.pad12_length")
pad12.Reversed = True
body12 = doc.addObject("PartDesign::Body", "Body011")

# Sketch on XZ plane
sketch18 = doc.addObject("Sketcher::SketchObject", "Sketch017")
body12.addObject(sketch18)
sketch18.AttachmentSupport = (doc.getObject("XZ_Plane011"), [""])
sketch18.MapMode = "FlatFace"
sketch18.AttachmentOffset = App.Placement(Vector(0, 0, -3.9), App.Rotation())
add_polygon(sketch18, [(39.970513, -26.138803), (39.970513, -25.645952), (40.490745, -25.645952), (40.490745, -26.138803)])  # lines 0-3
sketch18.addConstraint(Sketcher.Constraint("Vertical", 0))
sketch18.addConstraint(Sketcher.Constraint("Horizontal", 1))
sketch18.addConstraint(Sketcher.Constraint("Vertical", 2))
sketch18.addConstraint(Sketcher.Constraint("Horizontal", 3))
sketch18.addConstraint(Sketcher.Constraint("DistanceY", 0, 1, 0, 2, Q("0.492851 mm")))
sketch18.addConstraint(Sketcher.Constraint("DistanceX", 1, 1, 1, 2, Q("0.520232 mm")))
sketch18.addConstraint(Sketcher.Constraint("DistanceY", 0, 2, -1, 1, Q("25.645952 mm")))
sketch18.addConstraint(Sketcher.Constraint("DistanceX", -1, 1, 0, 2, Q("39.970513 mm")))
pad13 = doc.addObject("PartDesign::Pad", "Pad012")
body12.addObject(pad13)
pad13.Profile = sketch18
pad13.setExpression("Length", "Params.pad13_length")
pad13.Reversed = True

doc.recompute()
